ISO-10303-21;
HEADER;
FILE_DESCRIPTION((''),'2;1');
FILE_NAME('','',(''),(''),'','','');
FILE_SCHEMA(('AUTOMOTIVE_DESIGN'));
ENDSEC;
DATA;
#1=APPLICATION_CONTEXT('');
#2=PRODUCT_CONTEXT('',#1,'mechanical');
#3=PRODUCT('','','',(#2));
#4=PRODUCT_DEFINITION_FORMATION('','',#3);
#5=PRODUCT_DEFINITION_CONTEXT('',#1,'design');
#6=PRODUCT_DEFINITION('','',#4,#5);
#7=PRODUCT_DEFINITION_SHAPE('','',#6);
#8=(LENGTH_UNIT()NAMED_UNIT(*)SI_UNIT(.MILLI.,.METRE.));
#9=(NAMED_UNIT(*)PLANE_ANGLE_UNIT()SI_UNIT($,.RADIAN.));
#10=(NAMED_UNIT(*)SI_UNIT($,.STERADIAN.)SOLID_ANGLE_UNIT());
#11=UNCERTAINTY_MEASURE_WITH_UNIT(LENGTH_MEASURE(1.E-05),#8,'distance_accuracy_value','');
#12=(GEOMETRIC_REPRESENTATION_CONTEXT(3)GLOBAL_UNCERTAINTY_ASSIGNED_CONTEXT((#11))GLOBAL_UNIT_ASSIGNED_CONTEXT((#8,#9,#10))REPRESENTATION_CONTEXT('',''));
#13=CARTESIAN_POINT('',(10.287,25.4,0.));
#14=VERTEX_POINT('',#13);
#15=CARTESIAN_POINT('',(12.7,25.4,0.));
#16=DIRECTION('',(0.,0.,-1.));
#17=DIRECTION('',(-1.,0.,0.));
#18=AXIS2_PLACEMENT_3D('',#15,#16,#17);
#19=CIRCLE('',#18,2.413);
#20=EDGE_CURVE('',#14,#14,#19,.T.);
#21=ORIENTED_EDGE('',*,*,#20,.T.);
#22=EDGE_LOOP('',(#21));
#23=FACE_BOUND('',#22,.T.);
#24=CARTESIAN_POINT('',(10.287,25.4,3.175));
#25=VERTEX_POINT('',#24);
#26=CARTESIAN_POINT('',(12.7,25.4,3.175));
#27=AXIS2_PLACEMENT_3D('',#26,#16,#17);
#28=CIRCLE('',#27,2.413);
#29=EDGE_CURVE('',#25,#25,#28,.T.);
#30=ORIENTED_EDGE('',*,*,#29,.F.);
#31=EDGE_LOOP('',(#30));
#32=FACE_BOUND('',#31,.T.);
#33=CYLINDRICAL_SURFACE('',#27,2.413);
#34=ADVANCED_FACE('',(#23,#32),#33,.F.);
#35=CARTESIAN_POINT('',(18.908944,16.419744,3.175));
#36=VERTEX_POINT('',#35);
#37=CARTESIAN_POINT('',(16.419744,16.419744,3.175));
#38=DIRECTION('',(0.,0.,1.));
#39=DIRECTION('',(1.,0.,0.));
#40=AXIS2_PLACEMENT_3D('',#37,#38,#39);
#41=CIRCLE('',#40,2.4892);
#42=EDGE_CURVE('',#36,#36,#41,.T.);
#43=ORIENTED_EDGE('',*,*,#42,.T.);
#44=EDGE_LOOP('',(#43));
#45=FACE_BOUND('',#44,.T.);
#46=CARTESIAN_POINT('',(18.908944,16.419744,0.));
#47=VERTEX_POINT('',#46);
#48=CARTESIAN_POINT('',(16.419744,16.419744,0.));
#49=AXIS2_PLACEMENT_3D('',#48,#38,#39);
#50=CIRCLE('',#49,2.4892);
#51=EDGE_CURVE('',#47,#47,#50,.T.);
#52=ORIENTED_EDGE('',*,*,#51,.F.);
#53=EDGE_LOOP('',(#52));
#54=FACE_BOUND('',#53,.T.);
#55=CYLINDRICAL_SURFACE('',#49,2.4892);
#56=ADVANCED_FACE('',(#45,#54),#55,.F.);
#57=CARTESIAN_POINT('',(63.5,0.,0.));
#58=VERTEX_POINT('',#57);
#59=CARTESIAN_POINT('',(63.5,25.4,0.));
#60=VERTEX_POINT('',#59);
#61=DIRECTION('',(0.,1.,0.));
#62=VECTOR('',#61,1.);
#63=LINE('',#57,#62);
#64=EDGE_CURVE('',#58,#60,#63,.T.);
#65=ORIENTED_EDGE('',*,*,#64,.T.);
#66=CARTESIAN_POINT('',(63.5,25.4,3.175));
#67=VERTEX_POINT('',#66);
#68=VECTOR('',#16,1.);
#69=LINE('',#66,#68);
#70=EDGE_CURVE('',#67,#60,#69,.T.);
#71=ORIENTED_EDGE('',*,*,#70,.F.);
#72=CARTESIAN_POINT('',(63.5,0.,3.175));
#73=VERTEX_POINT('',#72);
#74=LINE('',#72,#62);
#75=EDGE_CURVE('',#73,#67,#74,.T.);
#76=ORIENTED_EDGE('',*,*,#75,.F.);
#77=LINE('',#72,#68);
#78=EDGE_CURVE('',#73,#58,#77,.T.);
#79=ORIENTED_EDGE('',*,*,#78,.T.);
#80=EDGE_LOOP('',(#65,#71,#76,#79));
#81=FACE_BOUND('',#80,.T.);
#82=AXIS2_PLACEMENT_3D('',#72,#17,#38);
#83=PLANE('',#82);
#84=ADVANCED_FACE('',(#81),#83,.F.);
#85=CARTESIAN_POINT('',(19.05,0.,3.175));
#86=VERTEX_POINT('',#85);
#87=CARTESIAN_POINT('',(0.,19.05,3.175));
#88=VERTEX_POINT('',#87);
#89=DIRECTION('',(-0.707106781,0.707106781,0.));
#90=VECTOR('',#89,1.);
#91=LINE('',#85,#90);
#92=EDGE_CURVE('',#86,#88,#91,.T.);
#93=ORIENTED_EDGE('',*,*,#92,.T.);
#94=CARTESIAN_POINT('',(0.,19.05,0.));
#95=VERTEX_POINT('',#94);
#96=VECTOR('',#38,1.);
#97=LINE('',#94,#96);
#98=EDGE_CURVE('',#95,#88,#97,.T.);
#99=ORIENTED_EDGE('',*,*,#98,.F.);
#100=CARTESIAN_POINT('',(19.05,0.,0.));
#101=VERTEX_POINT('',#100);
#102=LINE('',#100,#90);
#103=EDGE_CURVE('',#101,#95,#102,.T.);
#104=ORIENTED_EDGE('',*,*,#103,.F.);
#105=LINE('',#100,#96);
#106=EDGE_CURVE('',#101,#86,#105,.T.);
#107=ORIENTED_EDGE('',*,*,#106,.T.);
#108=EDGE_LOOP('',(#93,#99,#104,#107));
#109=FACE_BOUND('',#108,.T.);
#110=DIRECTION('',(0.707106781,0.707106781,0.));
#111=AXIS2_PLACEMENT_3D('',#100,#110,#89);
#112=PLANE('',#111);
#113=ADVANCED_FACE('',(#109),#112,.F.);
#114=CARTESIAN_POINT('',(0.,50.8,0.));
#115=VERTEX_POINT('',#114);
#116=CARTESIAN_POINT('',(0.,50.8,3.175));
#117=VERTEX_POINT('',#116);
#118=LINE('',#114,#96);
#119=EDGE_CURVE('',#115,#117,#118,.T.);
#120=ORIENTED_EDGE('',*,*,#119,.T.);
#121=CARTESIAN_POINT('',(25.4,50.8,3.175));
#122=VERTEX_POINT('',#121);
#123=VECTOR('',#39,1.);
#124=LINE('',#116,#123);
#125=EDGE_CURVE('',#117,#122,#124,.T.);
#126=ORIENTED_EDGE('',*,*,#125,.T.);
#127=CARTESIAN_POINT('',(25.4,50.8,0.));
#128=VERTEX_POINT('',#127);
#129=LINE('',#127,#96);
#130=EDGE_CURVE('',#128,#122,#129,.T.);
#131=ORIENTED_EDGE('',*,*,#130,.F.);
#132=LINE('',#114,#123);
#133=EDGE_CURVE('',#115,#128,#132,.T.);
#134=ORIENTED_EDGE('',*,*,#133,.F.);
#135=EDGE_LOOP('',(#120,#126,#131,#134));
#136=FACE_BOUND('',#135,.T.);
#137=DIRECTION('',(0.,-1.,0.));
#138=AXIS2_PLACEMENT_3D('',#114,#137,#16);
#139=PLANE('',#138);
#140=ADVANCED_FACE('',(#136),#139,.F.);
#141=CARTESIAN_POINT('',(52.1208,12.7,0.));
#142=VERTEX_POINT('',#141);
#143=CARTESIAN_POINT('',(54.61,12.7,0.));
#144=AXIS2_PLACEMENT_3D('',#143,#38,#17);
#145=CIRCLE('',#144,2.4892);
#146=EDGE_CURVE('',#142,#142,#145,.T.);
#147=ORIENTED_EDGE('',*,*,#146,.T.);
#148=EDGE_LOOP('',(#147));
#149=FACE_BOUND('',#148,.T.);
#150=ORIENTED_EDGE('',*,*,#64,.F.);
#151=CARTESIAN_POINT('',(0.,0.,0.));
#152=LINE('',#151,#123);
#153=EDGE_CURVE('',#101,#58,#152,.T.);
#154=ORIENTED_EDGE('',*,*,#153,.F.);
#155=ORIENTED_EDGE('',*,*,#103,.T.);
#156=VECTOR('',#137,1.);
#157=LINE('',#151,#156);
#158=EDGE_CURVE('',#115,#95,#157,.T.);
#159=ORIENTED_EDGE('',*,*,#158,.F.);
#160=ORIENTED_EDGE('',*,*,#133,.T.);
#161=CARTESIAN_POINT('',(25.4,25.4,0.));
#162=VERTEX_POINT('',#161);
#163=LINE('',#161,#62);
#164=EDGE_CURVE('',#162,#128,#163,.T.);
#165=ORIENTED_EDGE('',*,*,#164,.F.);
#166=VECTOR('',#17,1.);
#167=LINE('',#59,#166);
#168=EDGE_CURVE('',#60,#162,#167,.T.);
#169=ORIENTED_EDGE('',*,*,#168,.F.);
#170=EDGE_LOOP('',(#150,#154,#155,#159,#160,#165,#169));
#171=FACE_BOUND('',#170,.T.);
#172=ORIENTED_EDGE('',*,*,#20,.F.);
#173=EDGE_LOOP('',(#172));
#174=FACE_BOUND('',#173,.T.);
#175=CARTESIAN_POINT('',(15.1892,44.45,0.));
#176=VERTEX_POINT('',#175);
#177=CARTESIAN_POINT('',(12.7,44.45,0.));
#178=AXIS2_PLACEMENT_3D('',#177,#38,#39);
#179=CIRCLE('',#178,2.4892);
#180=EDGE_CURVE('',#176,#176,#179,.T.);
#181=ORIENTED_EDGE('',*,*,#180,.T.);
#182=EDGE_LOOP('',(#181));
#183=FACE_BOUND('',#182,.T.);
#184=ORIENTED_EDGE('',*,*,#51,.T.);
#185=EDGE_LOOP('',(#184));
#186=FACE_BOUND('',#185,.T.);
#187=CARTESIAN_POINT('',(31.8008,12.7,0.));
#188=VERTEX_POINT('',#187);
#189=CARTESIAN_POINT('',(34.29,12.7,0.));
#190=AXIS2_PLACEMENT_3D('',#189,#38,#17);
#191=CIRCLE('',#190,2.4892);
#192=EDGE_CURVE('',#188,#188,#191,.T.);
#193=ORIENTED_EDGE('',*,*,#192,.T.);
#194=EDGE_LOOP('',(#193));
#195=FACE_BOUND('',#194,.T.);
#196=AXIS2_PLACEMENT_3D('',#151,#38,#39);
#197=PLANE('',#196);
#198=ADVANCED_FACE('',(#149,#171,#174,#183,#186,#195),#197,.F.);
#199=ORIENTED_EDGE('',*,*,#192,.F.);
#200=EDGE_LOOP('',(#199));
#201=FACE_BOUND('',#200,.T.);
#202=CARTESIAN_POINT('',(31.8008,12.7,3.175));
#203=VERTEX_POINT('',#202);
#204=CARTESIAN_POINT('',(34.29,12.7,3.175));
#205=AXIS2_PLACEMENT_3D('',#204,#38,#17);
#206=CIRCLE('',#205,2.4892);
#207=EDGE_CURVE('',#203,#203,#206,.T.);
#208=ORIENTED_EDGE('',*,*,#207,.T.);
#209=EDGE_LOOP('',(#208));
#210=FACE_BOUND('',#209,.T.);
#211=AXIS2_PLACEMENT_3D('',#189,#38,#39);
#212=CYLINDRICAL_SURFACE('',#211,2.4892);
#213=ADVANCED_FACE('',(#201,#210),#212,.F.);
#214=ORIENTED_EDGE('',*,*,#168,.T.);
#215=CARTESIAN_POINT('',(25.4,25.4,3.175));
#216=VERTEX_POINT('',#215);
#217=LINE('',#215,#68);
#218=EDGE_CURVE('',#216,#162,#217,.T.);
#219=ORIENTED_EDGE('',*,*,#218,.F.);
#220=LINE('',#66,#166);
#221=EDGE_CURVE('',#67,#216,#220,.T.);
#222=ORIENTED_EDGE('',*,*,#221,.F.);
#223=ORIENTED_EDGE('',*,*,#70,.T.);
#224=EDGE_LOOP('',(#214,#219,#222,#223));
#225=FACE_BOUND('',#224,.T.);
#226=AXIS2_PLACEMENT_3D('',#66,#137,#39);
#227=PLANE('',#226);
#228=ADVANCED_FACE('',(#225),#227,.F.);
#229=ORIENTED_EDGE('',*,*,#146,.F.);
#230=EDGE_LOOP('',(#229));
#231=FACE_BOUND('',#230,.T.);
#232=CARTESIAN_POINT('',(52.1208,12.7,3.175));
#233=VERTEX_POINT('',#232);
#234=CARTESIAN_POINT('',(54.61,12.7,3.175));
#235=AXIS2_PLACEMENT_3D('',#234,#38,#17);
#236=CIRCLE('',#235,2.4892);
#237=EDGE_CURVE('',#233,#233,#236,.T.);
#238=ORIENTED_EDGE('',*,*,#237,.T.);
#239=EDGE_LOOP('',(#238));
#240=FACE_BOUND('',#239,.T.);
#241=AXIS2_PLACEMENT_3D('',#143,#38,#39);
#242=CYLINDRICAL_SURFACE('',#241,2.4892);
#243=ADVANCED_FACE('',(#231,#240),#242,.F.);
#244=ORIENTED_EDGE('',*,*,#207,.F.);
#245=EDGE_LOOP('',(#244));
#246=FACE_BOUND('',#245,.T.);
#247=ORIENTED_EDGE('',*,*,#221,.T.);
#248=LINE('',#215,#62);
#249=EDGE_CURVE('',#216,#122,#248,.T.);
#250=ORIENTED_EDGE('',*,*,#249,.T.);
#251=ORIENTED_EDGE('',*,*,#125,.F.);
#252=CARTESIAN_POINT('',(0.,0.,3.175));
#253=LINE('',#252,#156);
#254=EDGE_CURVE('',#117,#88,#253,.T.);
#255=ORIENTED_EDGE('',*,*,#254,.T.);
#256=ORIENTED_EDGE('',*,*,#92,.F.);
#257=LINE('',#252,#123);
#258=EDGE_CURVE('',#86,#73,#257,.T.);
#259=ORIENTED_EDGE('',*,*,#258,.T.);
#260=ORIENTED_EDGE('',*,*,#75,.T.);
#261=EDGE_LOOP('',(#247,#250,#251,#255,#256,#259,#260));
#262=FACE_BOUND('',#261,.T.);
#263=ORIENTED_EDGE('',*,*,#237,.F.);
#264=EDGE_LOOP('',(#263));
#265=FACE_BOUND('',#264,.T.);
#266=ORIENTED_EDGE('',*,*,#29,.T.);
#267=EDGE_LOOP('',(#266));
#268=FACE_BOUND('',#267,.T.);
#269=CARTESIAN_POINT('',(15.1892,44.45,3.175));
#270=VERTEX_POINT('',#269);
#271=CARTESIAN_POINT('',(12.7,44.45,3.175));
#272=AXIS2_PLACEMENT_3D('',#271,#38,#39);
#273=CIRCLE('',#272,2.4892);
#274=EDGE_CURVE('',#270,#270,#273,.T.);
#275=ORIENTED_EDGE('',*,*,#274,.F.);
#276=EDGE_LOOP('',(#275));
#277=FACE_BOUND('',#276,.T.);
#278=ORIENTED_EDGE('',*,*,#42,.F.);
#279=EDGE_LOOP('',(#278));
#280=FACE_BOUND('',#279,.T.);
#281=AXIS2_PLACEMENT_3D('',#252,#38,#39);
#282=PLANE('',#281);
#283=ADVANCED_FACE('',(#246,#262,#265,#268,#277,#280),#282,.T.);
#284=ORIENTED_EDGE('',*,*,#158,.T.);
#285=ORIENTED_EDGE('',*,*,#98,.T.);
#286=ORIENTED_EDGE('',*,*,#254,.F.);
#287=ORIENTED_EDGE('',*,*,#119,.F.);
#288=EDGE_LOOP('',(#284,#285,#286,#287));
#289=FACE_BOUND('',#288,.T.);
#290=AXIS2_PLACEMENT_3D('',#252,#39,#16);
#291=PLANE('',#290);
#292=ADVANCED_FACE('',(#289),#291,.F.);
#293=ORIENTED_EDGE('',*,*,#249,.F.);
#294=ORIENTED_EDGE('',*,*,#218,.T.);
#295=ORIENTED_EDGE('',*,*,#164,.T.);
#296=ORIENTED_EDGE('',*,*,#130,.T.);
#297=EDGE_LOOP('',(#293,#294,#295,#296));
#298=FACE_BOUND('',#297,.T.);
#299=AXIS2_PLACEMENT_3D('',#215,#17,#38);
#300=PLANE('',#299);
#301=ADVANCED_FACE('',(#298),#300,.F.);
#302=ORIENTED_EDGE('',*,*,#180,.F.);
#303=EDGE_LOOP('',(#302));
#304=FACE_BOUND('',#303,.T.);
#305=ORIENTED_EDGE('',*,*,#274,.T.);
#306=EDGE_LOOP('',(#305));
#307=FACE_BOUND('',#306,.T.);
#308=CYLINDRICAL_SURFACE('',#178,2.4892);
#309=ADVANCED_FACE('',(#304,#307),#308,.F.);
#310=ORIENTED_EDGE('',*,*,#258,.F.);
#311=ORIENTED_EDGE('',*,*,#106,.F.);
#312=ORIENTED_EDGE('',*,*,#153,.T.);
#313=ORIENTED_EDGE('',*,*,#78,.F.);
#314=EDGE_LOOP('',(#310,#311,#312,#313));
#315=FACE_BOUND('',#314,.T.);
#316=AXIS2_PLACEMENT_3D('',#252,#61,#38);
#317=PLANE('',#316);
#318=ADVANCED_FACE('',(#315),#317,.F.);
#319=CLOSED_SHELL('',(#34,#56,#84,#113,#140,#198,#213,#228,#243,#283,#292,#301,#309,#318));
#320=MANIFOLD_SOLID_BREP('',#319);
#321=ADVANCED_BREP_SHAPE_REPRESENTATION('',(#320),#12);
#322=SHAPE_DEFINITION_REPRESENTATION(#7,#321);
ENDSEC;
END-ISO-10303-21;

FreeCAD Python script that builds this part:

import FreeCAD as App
import Part
import Sketcher
Q = App.Units.Quantity

doc = App.newDocument("Part")
body = doc.addObject("PartDesign::Body", "Body")

# Sketch on XY plane
sketch1 = body.newObject("Sketcher::SketchObject", "Sketch")
sketch1.AttachmentSupport = (doc.getObject("XY_Plane"), [""])
sketch1.MapMode = "FlatFace"
sketch1.addGeometry([
    Part.LineSegment(App.Vector(0, 63.5, 0), App.Vector(0, 0, 0)),  # 0
    Part.LineSegment(App.Vector(0, 0, 0), App.Vector(63.5, 0, 0)),  # 1
    Part.LineSegment(App.Vector(63.5, 0, 0), App.Vector(63.5, 25.4, 0)),  # 2
    Part.LineSegment(App.Vector(63.5, 25.4, 0), App.Vector(25.4, 25.4, 0)),  # 3
    Part.LineSegment(App.Vector(25.4, 25.4, 0), App.Vector(25.4, 63.5, 0)),  # 4
    Part.LineSegment(App.Vector(25.4, 63.5, 0), App.Vector(0, 63.5, 0)),  # 5
], False)
sketch1.addConstraint([
    Sketcher.Constraint("Coincident", 0, 2, 1, 1),
    Sketcher.Constraint("Coincident", 1, 2, 2, 1),
    Sketcher.Constraint("Coincident", 2, 2, 3, 1),
    Sketcher.Constraint("Coincident", 3, 2, 4, 1),
    Sketcher.Constraint("Coincident", 4, 2, 5, 1),
    Sketcher.Constraint("Coincident", 5, 2, 0, 1),
    Sketcher.Constraint("Vertical", 0),
    Sketcher.Constraint("Horizontal", 1),
    Sketcher.Constraint("Vertical", 2),
    Sketcher.Constraint("Horizontal", 3),
    Sketcher.Constraint("Vertical", 4),
    Sketcher.Constraint("Horizontal", 5),
    Sketcher.Constraint("Coincident", 0, 2, -1, 1),
    Sketcher.Constraint("Equal", 1, 0),
    Sketcher.Constraint("Equal", 5, 2),
    Sketcher.Constraint("DistanceX", 5, 2, 5, 1, Q("1 in")),
    Sketcher.Constraint("DistanceX", 1, 1, 1, 2, Q("2.5 in")),
])
pad1 = body.newObject("PartDesign::Pad", "Pad")
pad1.Profile = sketch1
pad1.Length = Q("0.125 in")

# Sketch on XY plane
sketch2 = body.newObject("Sketcher::SketchObject", "Sketch001")
sketch2.AttachmentSupport = (doc.getObject("XY_Plane"), [""])
sketch2.MapMode = "FlatFace"
sketch2.AttachmentOffset = App.Placement(App.Vector(0, 0, 0.125 * 25.4), App.Rotation())
sketch2.addGeometry([
    Part.Circle(App.Vector(16.419744, 16.419744, 0), App.Vector(0, 0, 1), 2.4892),  # 0
    Part.Circle(App.Vector(12.7, 54.61, 0), App.Vector(0, 0, 1), 2.4892),  # 1
    Part.Circle(App.Vector(12.7, 44.45, 0), App.Vector(0, 0, 1), 2.4892),  # 2
    Part.Circle(App.Vector(34.29, 12.7, 0), App.Vector(0, 0, 1), 2.4892),  # 3
    Part.Circle(App.Vector(54.61, 12.7, 0), App.Vector(0, 0, 1), 2.4892),  # 4
    Part.LineSegment(App.Vector(0, 19.05, 0), App.Vector(0, 0, 0)),  # 5
    Part.LineSegment(App.Vector(0, 0, 0), App.Vector(19.05, 0, 0)),  # 6
    Part.LineSegment(App.Vector(19.05, 0, 0), App.Vector(0, 19.05, 0)),  # 7
], False)
sketch2.addConstraint([
    Sketcher.Constraint("Coincident", 5, 2, 6, 1),
    Sketcher.Constraint("Coincident", 6, 2, 7, 1),
    Sketcher.Constraint("Coincident", 7, 2, 5, 1),
    Sketcher.Constraint("Vertical", 5),
    Sketcher.Constraint("Horizontal", 6),
    Sketcher.Constraint("Coincident", 5, 2, -1, 1),
    Sketcher.Constraint("Equal", 0, 1),
    Sketcher.Constraint("Equal", 1, 2),
    Sketcher.Constraint("Equal", 2, 3),
    Sketcher.Constraint("Equal", 3, 4),
    Sketcher.Constraint("Horizontal", 3, 3, 4, 3),
    Sketcher.Constraint("Vertical", 1, 3, 2, 3),
    Sketcher.Constraint("Equal", 6, 5),
    Sketcher.Constraint("Diameter", 0, Q("0.196 in")),
    Sketcher.Constraint("DistanceY", 7, 2, 2, 3, Q("1 in")),
    Sketcher.Constraint("DistanceX", 6, 1, 6, 2, Q("0.75 in")),
    Sketcher.Constraint("DistanceX", -1, 1, 1, 3, Q("0.5 in")),
    Sketcher.Constraint("DistanceY", -1, 1, 3, 3, Q("0.5 in")),
    Sketcher.Constraint("DistanceY", 2, 3, 1, 3, Q("0.4 in")),
    Sketcher.Constraint("DistanceX", 3, 3, 4, 3, Q("0.8 in")),
    Sketcher.Constraint("DistanceX", 6, 2, 3, 3, Q("0.6 in")),
    Sketcher.Constraint("DistanceX", -1, 1, 0, 3, Q("16.419744 mm")),
    Sketcher.Constraint("DistanceY", -1, 1, 0, 3, Q("16.419744 mm")),
])
pocket1 = body.newObject("PartDesign::Pocket", "Pocket")
pocket1.Profile = sketch2
pocket1.Type = "ThroughAll"

# Sketch on XY plane
sketch3 = body.newObject("Sketcher::SketchObject", "Sketch002")
sketch3.AttachmentSupport = (doc.getObject("XY_Plane"), [""])
sketch3.MapMode = "FlatFace"
sketch3.addGeometry(Part.Circle(App.Vector(12.7, 25.4, 0), App.Vector(0, 0, 1), 2.413), False)
sketch3.addConstraint([
    Sketcher.Constraint("Diameter", 0, Q("0.19 in")),
    Sketcher.Constraint("DistanceY", -1, 1, 0, 3, Q("1 in")),
    Sketcher.Constraint("DistanceX", -1, 1, 0, 3, Q("0.5 in")),
])
pocket2 = body.newObject("PartDesign::Pocket", "Pocket001")
pocket2.Profile = sketch3
pocket2.Type = "ThroughAll"
pocket2.Reversed = True

# Sketch on XY plane
sketch4 = body.newObject("Sketcher::SketchObject", "Sketch003")
sketch4.AttachmentSupport = (doc.getObject("XY_Plane"), [""])
sketch4.MapMode = "FlatFace"
sketch4.AttachmentOffset = App.Placement(App.Vector(0, 0, 0.125 * 25.4), App.Rotation())
sketch4.addGeometry([
    Part.LineSegment(App.Vector(0, 63.5, 0), App.Vector(0, 50.8, 0)),
    Part.LineSegment(App.Vector(0, 50.8, 0), App.Vector(25.4, 50.8, 0)),
    Part.LineSegment(App.Vector(25.4, 50.8, 0), App.Vector(25.4, 63.5, 0)),
    Part.LineSegment(App.Vector(25.4, 63.5, 0), App.Vector(0, 63.5, 0)),
], False)
sketch4.addConstraint([
    Sketcher.Constraint("Coincident", 0, 2, 1, 1),
    Sketcher.Constraint("Coincident", 1, 2, 2, 1),
    Sketcher.Constraint("Coincident", 2, 2, 3, 1),
    Sketcher.Constraint("Coincident", 3, 2, 0, 1),
    Sketcher.Constraint("Vertical", 0),
    Sketcher.Constraint("Horizontal", 1),
    Sketcher.Constraint("Vertical", 2),
    Sketcher.Constraint("Horizontal", 3),
    Sketcher.Constraint("PointOnObject", 0, 2, -2),
    Sketcher.Constraint("DistanceX", 1, 1, 1, 2, Q("1 in")),
    Sketcher.Constraint("DistanceY", 0, 2, 0, 1, Q("0.5 in")),
    Sketcher.Constraint("DistanceY", -1, 1, 0, 2, Q("2 in")),
])
pocket3 = body.newObject("PartDesign::Pocket", "Pocket002")
pocket3.Profile = sketch4
pocket3.Type = "ThroughAll"

doc.recompute()
